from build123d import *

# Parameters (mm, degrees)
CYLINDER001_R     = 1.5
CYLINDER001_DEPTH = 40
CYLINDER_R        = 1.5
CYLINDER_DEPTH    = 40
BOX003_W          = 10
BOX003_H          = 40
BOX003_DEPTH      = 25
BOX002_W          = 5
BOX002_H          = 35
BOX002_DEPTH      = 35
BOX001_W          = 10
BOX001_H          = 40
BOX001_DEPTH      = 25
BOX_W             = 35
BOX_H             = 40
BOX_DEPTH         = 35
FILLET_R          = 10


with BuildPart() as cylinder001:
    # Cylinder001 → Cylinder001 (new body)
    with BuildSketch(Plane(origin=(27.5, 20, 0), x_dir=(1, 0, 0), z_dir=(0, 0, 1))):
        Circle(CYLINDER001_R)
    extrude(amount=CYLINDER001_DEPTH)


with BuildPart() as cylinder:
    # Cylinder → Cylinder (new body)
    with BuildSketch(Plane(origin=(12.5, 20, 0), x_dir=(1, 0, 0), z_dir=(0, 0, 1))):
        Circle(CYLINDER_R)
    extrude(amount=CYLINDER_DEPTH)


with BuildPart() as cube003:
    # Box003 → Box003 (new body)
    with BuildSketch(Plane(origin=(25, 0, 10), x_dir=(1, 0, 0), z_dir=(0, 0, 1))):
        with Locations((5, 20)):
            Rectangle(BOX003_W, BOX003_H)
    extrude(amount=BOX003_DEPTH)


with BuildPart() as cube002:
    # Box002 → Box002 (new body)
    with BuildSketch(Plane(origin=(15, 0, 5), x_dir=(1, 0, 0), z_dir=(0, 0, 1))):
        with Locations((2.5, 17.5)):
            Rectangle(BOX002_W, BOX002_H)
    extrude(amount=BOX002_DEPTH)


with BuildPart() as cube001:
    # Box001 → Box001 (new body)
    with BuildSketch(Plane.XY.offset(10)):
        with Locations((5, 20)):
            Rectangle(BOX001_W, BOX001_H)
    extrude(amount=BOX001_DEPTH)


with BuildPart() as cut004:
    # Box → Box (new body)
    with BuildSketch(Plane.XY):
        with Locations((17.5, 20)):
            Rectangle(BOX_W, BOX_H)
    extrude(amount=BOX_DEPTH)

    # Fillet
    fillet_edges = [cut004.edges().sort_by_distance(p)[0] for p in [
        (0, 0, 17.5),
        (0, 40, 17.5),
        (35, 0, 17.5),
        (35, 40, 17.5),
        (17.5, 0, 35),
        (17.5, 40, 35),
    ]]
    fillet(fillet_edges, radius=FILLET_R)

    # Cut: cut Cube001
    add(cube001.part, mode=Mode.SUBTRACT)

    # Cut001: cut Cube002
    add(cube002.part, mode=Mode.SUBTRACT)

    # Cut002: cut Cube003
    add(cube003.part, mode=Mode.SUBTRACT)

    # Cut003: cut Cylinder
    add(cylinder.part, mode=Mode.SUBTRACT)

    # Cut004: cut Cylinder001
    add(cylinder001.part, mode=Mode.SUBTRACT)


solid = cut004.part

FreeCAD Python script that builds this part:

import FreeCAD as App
import Part
import Sketcher
from FreeCAD import Vector


def edges_at(feature, points):
    """Names of the edges that pass closest to the given points."""
    edges = feature.Shape.Edges
    near = lambda p: min(range(len(edges)), key=lambda i: edges[i].distToShape(Part.Vertex(*p))[0])
    return sorted({f"Edge{near(p) + 1}" for p in points})


def add_polygon(sketch, points):
    """Adds a closed chain of lines whose ends are joined by coincident constraints."""
    first, n = sketch.GeometryCount, len(points)
    for a, b in zip(points, points[1:] + points[:1]):
        sketch.addGeometry(Part.LineSegment(App.Vector(*a, 0), App.Vector(*b, 0)), False)
    for i in range(n):
        sketch.addConstraint(Sketcher.Constraint("Coincident", first + i, 2, first + (i + 1) % n, 1))

doc = App.newDocument("Part")
body = doc.addObject("PartDesign::Body", "Body")

# Sketch on XY plane
sketch1 = body.newObject("Sketcher::SketchObject", "Sketch")
sketch1.AttachmentSupport = (doc.getObject("XY_Plane"), [""])
sketch1.MapMode = "FlatFace"
sketch1.addGeometry(Part.Circle(Vector(27.5, 20, 0), Vector(0, 0, 1), 1.5), False)
sketch1.addConstraint([
    Sketcher.Constraint("Diameter", 0, 3.0),
    Sketcher.Constraint("DistanceY", -1, 1, 0, 3, 20.0),
    Sketcher.Constraint("DistanceX", -1, 1, 0, 3, 27.5),
])
pad1 = body.newObject("PartDesign::Pad", "Pad")
pad1.Profile = sketch1
pad1.Length = 40
body2 = doc.addObject("PartDesign::Body", "Body001")

# Sketch on XY plane
sketch2 = body2.newObject("Sketcher::SketchObject", "Sketch001")
sketch2.AttachmentSupport = (doc.getObject("XY_Plane001"), [""])
sketch2.MapMode = "FlatFace"
sketch2.addGeometry(Part.Circle(Vector(12.5, 20, 0), Vector(0, 0, 1), 1.5), False)
sketch2.addConstraint([
    Sketcher.Constraint("Diameter", 0, 3.0),
    Sketcher.Constraint("DistanceY", -1, 1, 0, 3, 20.0),
    Sketcher.Constraint("DistanceX", -1, 1, 0, 3, 12.5),
])
pad2 = body2.newObject("PartDesign::Pad", "Pad001")
pad2.Profile = sketch2
pad2.Length = 40
body3 = doc.addObject("PartDesign::Body", "Body002")

# Sketch on XY plane
sketch3 = body3.newObject("Sketcher::SketchObject", "Sketch002")
sketch3.AttachmentSupport = (doc.getObject("XY_Plane002"), [""])
sketch3.MapMode = "FlatFace"
sketch3.AttachmentOffset = App.Placement(Vector(0, 0, 10), App.Rotation())
add_polygon(sketch3, [(25, 40), (25, 0), (35, 0), (35, 40)])  # lines 0-3
sketch3.addConstraint([
    Sketcher.Constraint("Vertical", 0),
    Sketcher.Constraint("Horizontal", 1),
    Sketcher.Constraint("Vertical", 2),
    Sketcher.Constraint("Horizontal", 3),
    Sketcher.Constraint("PointOnObject", 0, 2, -1),
    Sketcher.Constraint("DistanceX", 1, 1, 1, 2, 10.0),
    Sketcher.Constraint("DistanceY", 0, 2, 0, 1, 40.0),
    Sketcher.Constraint("DistanceX", -1, 1, 0, 2, 25.0),
])
pad3 = body3.newObject("PartDesign::Pad", "Pad002")
pad3.Profile = sketch3
pad3.Length = 25
body4 = doc.addObject("PartDesign::Body", "Body003")

# Sketch on XY plane
sketch4 = body4.newObject("Sketcher::SketchObject", "Sketch003")
sketch4.AttachmentSupport = (doc.getObject("XY_Plane003"), [""])
sketch4.MapMode = "FlatFace"
sketch4.AttachmentOffset = App.Placement(Vector(0, 0, 5), App.Rotation())
add_polygon(sketch4, [(15, 35), (15, 0), (20, 0), (20, 35)])  # lines 0-3
sketch4.addConstraint([
    Sketcher.Constraint("Vertical", 0),
    Sketcher.Constraint("Horizontal", 1),
    Sketcher.Constraint("Vertical", 2),
    Sketcher.Constraint("Horizontal", 3),
    Sketcher.Constraint("PointOnObject", 0, 2, -1),
    Sketcher.Constraint("DistanceX", 1, 1, 1, 2, 5.0),
    Sketcher.Constraint("DistanceY", 0, 2, 0, 1, 35.0),
    Sketcher.Constraint("DistanceX", -1, 1, 0, 2, 15.0),
])
pad4 = body4.newObject("PartDesign::Pad", "Pad003")
pad4.Profile = sketch4
pad4.Length = 35
body5 = doc.addObject("PartDesign::Body", "Body004")

# Sketch on XY plane
sketch5 = body5.newObject("Sketcher::SketchObject", "Sketch004")
sketch5.AttachmentSupport = (doc.getObject("XY_Plane004"), [""])
sketch5.MapMode = "FlatFace"
sketch5.AttachmentOffset = App.Placement(Vector(0, 0, 10), App.Rotation())
add_polygon(sketch5, [(0, 40), (0, 0), (10, 0), (10, 40)])  # lines 0-3
sketch5.addConstraint([
    Sketcher.Constraint("Vertical", 0),
    Sketcher.Constraint("Horizontal", 1),
    Sketcher.Constraint("Vertical", 2),
    Sketcher.Constraint("Horizontal", 3),
    Sketcher.Constraint("Coincident", 0, 2, -1, 1),
    Sketcher.Constraint("DistanceX", 1, 1, 1, 2, 10.0),
    Sketcher.Constraint("DistanceY", 0, 2, 0, 1, 40.0),
])
pad5 = body5.newObject("PartDesign::Pad", "Pad004")
pad5.Profile = sketch5
pad5.Length = 25
body6 = doc.addObject("PartDesign::Body", "Body005")

# Sketch on XY plane
sketch6 = body6.newObject("Sketcher::SketchObject", "Sketch005")
sketch6.AttachmentSupport = (doc.getObject("XY_Plane005"), [""])
sketch6.MapMode = "FlatFace"
add_polygon(sketch6, [(0, 40), (0, 0), (35, 0), (35, 40)])  # lines 0-3
sketch6.addConstraint([
    Sketcher.Constraint("Vertical", 0),
    Sketcher.Constraint("Horizontal", 1),
    Sketcher.Constraint("Vertical", 2),
    Sketcher.Constraint("Horizontal", 3),
    Sketcher.Constraint("Coincident", 0, 2, -1, 1),
    Sketcher.Constraint("DistanceX", 1, 1, 1, 2, 35.0),
    Sketcher.Constraint("DistanceY", 0, 2, 0, 1, 40.0),
])
pad6 = body6.newObject("PartDesign::Pad", "Pad005")
pad6.Profile = sketch6
pad6.Length = 35
doc.recompute()

fillet = body6.newObject("PartDesign::Fillet", "Fillet")
fillet.Base = (pad6, edges_at(pad6, [
    (0, 0, 17.5),
    (0, 40, 17.5),
    (35, 0, 17.5),
    (35, 40, 17.5),
    (17.5, 0, 35),
    (17.5, 40, 35),
]))
fillet.Radius = 10
doc.recompute()

boolean = body6.newObject("PartDesign::Boolean", "Boolean")
boolean.Type = "Cut"
boolean.addObjects([body5])
doc.recompute()

boolean2 = body6.newObject("PartDesign::Boolean", "Boolean001")
boolean2.Type = "Cut"
boolean2.addObjects([body4])
doc.recompute()

boolean3 = body6.newObject("PartDesign::Boolean", "Boolean002")
boolean3.Type = "Cut"
boolean3.addObjects([body3])
doc.recompute()

boolean4 = body6.newObject("PartDesign::Boolean", "Boolean003")
boolean4.Type = "Cut"
boolean4.addObjects([body2])
doc.recompute()

boolean5 = body6.newObject("PartDesign::Boolean", "Boolean004")
boolean5.Type = "Cut"
boolean5.addObjects([body])

doc.recompute()
